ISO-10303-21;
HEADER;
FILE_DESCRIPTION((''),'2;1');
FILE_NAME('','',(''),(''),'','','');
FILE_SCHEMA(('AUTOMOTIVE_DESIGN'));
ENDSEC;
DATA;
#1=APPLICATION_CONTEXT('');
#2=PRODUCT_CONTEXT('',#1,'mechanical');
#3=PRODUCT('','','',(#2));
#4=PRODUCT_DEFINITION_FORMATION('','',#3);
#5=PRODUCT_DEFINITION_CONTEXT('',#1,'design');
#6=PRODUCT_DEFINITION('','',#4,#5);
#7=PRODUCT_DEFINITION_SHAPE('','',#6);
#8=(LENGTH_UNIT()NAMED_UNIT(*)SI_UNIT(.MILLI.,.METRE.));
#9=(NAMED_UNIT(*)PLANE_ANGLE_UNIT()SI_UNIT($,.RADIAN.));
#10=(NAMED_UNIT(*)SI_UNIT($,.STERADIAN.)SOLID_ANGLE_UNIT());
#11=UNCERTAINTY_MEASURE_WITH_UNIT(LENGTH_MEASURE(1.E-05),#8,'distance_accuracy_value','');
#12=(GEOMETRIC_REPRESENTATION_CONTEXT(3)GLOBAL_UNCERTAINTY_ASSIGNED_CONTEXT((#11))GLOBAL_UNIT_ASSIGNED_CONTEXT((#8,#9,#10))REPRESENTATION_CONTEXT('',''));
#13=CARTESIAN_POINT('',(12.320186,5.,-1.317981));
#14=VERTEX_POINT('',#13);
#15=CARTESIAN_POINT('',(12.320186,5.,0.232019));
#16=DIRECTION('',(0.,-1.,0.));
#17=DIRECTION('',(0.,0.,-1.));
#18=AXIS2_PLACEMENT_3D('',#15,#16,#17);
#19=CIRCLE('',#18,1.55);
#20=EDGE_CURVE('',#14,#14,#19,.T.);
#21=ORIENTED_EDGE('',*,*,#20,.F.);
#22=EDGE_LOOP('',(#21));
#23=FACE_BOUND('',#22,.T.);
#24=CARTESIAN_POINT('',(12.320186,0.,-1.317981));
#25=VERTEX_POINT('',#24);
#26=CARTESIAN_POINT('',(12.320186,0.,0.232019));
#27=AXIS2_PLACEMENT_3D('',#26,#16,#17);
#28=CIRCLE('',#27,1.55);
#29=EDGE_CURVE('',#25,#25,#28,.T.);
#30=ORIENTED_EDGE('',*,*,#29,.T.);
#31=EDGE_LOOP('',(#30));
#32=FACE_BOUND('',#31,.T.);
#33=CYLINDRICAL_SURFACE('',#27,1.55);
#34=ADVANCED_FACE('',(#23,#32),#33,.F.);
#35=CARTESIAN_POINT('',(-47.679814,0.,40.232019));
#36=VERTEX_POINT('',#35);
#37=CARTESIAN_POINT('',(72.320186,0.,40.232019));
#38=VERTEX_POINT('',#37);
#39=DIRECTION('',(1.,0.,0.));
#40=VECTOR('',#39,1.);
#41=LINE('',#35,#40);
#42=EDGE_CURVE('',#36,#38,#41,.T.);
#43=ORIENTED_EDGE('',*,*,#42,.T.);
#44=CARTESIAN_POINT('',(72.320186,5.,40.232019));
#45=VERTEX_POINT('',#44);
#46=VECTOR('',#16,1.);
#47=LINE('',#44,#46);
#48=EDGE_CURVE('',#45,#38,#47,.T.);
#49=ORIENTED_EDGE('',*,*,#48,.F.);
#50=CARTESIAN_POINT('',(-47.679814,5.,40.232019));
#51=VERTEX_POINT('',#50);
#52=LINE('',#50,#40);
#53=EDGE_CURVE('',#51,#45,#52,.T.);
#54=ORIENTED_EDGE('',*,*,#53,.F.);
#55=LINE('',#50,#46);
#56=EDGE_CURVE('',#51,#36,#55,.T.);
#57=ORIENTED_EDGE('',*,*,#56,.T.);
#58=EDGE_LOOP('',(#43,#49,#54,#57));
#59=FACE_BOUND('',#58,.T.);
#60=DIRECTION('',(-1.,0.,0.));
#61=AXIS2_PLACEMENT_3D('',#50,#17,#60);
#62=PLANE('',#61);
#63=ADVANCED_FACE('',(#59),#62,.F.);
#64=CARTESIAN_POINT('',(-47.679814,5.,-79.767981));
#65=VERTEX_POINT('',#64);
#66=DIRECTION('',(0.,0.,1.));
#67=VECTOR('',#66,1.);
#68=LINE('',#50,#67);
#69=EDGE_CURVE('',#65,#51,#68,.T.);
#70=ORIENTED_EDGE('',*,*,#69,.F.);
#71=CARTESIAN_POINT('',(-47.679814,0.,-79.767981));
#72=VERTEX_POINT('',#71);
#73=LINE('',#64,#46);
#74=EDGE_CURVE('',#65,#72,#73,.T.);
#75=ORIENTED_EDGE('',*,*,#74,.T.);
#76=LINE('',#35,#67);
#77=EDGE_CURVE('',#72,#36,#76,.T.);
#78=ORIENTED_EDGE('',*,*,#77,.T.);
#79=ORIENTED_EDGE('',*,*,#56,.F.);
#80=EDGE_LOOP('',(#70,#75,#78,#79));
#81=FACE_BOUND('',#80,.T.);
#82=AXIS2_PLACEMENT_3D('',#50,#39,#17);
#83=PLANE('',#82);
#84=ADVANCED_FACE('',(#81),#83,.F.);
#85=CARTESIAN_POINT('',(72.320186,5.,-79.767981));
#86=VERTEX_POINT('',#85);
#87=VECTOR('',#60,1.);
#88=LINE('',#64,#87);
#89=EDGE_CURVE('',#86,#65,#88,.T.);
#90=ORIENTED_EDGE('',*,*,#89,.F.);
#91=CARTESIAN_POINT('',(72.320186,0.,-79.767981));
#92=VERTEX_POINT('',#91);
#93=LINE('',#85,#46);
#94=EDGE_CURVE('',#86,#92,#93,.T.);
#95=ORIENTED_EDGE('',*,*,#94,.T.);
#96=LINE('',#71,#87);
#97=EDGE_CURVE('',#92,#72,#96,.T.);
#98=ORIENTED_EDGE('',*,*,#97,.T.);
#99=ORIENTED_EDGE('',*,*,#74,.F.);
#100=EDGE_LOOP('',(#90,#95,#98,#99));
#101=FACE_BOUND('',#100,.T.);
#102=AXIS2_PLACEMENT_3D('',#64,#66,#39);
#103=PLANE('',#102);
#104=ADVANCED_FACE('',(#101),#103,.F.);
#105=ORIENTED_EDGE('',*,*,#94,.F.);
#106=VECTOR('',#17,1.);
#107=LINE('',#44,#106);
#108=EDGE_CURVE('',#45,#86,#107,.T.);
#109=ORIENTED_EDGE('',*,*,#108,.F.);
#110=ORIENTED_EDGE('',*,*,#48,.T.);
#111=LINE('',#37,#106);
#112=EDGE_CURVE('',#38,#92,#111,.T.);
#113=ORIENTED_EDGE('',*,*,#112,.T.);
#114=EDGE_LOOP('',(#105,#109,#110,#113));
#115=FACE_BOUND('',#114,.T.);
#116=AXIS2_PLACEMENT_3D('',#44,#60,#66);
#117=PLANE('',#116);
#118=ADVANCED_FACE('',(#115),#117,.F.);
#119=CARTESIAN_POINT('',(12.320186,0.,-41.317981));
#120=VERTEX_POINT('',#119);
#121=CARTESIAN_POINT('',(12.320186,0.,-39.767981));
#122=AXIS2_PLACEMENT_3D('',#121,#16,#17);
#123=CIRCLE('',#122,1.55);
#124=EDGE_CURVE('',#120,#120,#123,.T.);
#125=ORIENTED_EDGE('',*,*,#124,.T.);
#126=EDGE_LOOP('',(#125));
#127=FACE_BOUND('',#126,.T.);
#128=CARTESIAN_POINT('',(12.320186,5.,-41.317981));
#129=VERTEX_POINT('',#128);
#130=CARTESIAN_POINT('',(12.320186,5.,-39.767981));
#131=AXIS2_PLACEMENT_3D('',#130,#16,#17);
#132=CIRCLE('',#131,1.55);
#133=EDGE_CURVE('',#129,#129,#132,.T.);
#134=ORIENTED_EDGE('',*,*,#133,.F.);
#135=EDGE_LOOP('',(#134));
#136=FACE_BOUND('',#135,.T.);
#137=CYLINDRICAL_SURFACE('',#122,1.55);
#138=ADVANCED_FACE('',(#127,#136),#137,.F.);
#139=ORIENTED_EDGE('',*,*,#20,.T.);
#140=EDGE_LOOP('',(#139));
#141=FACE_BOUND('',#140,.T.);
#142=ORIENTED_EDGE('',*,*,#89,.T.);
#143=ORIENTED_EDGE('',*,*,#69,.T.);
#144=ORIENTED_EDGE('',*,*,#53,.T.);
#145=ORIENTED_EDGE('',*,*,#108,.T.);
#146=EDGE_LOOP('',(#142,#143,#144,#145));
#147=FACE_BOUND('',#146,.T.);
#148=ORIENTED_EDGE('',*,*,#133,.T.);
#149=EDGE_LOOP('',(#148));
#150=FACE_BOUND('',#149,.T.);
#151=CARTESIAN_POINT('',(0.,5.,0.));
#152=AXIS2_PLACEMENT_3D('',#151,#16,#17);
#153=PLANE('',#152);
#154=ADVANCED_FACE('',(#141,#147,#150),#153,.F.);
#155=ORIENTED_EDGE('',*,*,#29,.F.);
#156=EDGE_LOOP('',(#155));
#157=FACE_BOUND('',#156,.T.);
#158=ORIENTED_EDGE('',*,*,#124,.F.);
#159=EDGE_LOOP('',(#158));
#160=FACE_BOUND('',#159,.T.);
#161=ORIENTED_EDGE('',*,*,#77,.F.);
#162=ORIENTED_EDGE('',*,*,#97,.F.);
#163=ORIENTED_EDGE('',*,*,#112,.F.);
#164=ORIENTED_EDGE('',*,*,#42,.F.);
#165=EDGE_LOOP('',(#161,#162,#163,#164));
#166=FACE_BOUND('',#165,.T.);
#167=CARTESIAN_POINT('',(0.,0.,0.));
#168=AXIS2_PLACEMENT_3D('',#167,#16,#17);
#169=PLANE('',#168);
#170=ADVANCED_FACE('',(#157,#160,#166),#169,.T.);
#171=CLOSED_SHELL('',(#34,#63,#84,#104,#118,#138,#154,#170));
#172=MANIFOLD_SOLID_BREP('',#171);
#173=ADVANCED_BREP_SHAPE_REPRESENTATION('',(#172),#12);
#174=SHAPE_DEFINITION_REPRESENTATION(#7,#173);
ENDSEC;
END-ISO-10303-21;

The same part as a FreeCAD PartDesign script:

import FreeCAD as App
import Part
import Sketcher

V = App.Vector


def add_polygon(sketch, points):
    """Adds a closed chain of lines whose ends are joined by coincident constraints."""
    first, n = sketch.GeometryCount, len(points)
    for a, b in zip(points, points[1:] + points[:1]):
        sketch.addGeometry(Part.LineSegment(App.Vector(*a, 0), App.Vector(*b, 0)), False)
    for i in range(n):
        sketch.addConstraint(Sketcher.Constraint("Coincident", first + i, 2, first + (i + 1) % n, 1))

doc = App.newDocument("Part")
body = doc.addObject("PartDesign::Body", "Body")

sketch1 = body.newObject("Sketcher::SketchObject", "Sketch")
sketch1.AttachmentSupport = (doc.getObject("XZ_Plane"), [""])
sketch1.MapMode = "FlatFace"
add_polygon(sketch1, [(-48, -80), (-48, 40), (72, 40), (72, -80)])
sketch1.addConstraint([
    Sketcher.Constraint("Vertical", 0),
    Sketcher.Constraint("Horizontal", 1),
    Sketcher.Constraint("Vertical", 2),
    Sketcher.Constraint("Horizontal", 3),
    Sketcher.Constraint("Equal", 3, 0),
    Sketcher.Constraint("DistanceX", 1, 1, 1, 2, 120.0),
    Sketcher.Constraint("DistanceY", -1, 1, 0, 2, 40.232019),
    Sketcher.Constraint("DistanceX", 0, 2, -1, 1, 47.679814),
])
pad1 = body.newObject("PartDesign::Pad", "Pad")
pad1.Profile = sketch1
pad1.Length = 5
pad1.Reversed = True

sketch2 = body.newObject("Sketcher::SketchObject", "Sketch001")
sketch2.AttachmentSupport = (doc.getObject("XZ_Plane"), [""])
sketch2.MapMode = "FlatFace"
sketch2.addGeometry([
    Part.Circle(V(12.3, 0.2, 0), V(0, 0, 1), 1.6),
    Part.Circle(V(12.3, -39.8, 0), V(0, 0, 1), 1.6),
], False)
sketch2.addConstraint([
    Sketcher.Constraint("Equal", 0, 1),
    Sketcher.Constraint("Vertical", 0, 3, 1, 3),
    Sketcher.Constraint("Diameter", 0, 3.1),
    Sketcher.Constraint("DistanceY", 1, 3, 0, 3, 40.0),
    Sketcher.Constraint("DistanceY", -1, 1, 0, 3, 0.232019),
    Sketcher.Constraint("DistanceX", -1, 1, 0, 3, 12.320186),
])
doc.recompute()
hole = body.newObject("PartDesign::Hole", "Hole")
hole.Profile = sketch2
hole.ThreadType = "None"
hole.Diameter = 3.1
hole.DepthType = "ThroughAll"

doc.recompute()
